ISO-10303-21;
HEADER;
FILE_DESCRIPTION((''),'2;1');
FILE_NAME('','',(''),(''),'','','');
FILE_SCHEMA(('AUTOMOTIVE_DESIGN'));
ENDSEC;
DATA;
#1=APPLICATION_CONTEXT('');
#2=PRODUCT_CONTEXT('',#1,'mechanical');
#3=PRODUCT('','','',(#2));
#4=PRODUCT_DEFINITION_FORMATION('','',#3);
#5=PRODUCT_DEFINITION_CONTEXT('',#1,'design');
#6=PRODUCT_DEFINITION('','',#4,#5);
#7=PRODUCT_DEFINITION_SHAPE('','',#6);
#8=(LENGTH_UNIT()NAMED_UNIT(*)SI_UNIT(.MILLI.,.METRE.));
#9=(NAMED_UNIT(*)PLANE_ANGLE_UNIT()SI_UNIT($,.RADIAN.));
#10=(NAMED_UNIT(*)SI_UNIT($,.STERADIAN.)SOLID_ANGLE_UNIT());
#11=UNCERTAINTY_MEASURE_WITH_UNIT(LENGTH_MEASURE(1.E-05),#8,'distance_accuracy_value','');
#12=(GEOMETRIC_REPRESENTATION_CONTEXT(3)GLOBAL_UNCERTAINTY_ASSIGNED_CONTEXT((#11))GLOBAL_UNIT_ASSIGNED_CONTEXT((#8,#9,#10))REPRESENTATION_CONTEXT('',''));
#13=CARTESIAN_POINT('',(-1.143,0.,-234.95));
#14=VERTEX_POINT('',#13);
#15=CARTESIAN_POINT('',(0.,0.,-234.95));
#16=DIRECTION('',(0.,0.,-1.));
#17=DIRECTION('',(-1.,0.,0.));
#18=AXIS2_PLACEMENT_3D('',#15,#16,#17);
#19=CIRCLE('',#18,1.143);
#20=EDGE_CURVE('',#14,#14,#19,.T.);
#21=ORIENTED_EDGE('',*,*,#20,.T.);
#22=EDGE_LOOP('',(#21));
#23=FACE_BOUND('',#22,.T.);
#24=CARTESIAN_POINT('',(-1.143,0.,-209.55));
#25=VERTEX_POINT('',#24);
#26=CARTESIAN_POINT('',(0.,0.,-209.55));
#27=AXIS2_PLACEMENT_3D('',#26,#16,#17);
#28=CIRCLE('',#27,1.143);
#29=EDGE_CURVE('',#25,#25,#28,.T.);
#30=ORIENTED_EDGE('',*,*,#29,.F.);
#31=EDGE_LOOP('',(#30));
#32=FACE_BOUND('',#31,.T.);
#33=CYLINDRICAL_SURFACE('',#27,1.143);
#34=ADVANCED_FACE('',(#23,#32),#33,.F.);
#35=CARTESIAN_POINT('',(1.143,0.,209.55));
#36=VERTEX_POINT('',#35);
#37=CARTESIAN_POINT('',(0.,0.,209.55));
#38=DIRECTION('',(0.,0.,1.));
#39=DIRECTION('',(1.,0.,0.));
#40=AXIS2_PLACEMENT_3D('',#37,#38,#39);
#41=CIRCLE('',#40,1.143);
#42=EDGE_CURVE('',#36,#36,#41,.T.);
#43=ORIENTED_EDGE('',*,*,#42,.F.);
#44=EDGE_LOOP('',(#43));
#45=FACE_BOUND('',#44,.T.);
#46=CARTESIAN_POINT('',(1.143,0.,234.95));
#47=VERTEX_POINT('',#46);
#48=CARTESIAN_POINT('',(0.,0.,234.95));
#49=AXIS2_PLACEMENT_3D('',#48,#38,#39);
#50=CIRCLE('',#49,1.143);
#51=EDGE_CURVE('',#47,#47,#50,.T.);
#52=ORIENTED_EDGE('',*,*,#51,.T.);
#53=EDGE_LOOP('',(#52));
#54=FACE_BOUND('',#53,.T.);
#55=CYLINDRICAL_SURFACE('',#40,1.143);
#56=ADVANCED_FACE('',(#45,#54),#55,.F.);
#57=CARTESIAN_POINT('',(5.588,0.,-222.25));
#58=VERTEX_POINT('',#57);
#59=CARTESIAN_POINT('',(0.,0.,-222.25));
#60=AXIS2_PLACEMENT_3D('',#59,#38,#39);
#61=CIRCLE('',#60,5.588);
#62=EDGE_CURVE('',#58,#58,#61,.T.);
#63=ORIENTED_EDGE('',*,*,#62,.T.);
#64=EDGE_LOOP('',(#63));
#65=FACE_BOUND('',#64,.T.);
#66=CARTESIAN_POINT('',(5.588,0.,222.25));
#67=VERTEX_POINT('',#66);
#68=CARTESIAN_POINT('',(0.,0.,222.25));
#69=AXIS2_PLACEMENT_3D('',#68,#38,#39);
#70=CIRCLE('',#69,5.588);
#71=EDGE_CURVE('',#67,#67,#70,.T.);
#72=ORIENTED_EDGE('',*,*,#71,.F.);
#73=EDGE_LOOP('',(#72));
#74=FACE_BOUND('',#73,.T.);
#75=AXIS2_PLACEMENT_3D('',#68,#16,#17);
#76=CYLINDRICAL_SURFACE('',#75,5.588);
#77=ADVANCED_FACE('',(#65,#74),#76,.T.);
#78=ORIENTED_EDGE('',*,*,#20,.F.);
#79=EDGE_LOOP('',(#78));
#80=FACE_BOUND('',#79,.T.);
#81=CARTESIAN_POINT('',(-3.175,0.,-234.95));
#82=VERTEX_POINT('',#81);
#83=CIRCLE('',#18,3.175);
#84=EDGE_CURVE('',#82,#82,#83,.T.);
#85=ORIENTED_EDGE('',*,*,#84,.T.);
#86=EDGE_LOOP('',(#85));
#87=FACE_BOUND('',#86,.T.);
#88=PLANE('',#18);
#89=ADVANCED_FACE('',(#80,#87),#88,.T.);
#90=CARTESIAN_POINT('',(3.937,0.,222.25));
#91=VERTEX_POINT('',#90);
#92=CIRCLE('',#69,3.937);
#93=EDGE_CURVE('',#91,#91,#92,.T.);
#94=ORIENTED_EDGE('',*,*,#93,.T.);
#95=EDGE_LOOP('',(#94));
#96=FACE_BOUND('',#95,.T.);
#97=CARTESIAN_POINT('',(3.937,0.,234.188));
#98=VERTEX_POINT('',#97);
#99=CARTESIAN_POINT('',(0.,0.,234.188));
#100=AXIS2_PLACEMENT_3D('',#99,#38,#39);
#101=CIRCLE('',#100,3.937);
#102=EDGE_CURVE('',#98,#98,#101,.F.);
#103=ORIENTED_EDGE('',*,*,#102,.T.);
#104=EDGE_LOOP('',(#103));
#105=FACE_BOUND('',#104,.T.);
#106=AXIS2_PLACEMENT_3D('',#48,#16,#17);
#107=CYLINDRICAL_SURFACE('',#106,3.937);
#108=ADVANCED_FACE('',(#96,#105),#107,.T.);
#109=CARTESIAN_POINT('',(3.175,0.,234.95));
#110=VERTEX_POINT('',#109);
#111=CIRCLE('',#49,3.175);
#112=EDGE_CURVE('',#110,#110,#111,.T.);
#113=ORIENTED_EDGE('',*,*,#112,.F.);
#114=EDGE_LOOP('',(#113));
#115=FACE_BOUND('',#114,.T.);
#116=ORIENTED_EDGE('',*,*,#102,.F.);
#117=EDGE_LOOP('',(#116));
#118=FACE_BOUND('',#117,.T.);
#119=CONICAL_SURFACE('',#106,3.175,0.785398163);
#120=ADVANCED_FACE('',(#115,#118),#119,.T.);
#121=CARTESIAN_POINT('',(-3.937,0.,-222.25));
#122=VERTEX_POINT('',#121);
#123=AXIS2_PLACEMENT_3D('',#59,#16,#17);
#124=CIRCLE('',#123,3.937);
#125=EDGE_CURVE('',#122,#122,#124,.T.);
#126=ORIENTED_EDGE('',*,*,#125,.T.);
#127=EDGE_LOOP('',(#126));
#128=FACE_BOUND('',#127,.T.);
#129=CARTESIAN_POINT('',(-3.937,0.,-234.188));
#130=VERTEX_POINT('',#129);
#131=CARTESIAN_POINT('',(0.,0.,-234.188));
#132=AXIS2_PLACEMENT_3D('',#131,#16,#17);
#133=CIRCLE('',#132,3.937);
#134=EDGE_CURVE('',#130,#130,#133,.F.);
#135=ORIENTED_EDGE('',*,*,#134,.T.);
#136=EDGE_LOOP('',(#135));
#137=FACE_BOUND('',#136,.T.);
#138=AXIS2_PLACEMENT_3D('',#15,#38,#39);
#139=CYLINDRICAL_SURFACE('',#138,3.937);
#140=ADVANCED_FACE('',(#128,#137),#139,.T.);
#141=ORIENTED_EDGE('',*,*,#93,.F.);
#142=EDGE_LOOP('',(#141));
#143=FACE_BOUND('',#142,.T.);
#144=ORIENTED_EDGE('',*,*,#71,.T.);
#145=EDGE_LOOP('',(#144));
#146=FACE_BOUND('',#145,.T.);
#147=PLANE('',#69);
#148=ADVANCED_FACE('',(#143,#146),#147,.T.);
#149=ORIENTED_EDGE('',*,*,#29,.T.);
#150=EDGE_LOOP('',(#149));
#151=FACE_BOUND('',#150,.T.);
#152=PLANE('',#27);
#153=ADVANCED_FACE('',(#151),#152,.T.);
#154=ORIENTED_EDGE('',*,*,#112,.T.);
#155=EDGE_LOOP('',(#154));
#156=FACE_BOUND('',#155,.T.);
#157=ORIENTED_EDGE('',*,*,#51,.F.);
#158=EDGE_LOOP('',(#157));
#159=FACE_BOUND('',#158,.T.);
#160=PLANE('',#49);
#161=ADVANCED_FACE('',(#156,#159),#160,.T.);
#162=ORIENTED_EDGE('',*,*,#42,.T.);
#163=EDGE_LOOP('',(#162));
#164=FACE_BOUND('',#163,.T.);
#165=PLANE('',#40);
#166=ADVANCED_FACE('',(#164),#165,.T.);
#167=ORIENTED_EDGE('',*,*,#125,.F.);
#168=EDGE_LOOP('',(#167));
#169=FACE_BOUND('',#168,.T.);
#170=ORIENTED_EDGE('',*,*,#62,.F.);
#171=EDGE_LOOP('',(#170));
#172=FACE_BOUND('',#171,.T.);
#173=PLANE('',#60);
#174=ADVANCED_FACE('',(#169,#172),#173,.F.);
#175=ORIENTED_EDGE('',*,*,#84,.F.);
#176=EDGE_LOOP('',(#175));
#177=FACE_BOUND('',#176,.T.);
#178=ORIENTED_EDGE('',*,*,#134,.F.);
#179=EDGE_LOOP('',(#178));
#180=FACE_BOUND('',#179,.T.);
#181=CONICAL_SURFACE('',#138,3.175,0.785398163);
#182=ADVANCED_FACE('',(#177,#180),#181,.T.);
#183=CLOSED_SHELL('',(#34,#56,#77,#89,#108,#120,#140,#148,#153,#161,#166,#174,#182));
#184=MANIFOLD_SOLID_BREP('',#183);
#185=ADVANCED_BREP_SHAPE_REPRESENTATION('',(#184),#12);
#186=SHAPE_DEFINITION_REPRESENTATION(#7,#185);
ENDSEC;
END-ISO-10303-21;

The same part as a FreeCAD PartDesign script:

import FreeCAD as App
import Part
import Sketcher
Q = App.Units.Quantity


def edges_at(feature, points):
    """Names of the edges that pass closest to the given points."""
    edges = feature.Shape.Edges
    near = lambda p: min(range(len(edges)), key=lambda i: edges[i].distToShape(Part.Vertex(*p))[0])
    return sorted({f"Edge{near(p) + 1}" for p in points})

doc = App.newDocument("Part")
body = doc.addObject("PartDesign::Body", "Body")

# Sketch on XY plane
sketch1 = body.newObject("Sketcher::SketchObject", "Sketch")
sketch1.AttachmentSupport = (doc.getObject("XY_Plane"), [""])
sketch1.MapMode = "FlatFace"
sketch1.addGeometry(Part.Circle(App.Vector(0, 0, 0), App.Vector(0, 0, 1), 6), False)
sketch1.addConstraint([
    Sketcher.Constraint("Coincident", 0, 3, -1, 1),
    Sketcher.Constraint("Diameter", 0, Q("0.44 in")),
])
pad1 = body.newObject("PartDesign::Pad", "Pad")
pad1.Profile = sketch1
pad1.Length = Q("17.5 in")
pad1.Midplane = True

# Sketch on XY plane
sketch2 = body.newObject("Sketcher::SketchObject", "Sketch001")
sketch2.AttachmentSupport = (doc.getObject("XY_Plane"), [""])
sketch2.MapMode = "FlatFace"
sketch2.AttachmentOffset = App.Placement(App.Vector(0, 0, 8.75 * 25.4), App.Rotation())
sketch2.addGeometry(Part.Circle(App.Vector(0, 0, 0), App.Vector(0, 0, 1), 3.9), False)
sketch2.addConstraint([
    Sketcher.Constraint("Coincident", 0, 3, -1, 1),
    Sketcher.Constraint("Diameter", 0, Q("0.31 in")),
])
pad2 = body.newObject("PartDesign::Pad", "Pad001")
pad2.Profile = sketch2
pad2.Length = Q("0.5 in")

# Sketch on XY plane
sketch3 = body.newObject("Sketcher::SketchObject", "Sketch002")
sketch3.AttachmentSupport = (doc.getObject("XY_Plane"), [""])
sketch3.MapMode = "FlatFace"
sketch3.AttachmentOffset = App.Placement(App.Vector(0, 0, -9.25 * 25.4), App.Rotation())
sketch3.addGeometry(Part.Circle(App.Vector(0, 0, 0), App.Vector(0, 0, 1), 3.9), False)
sketch3.addConstraint([
    Sketcher.Constraint("Coincident", 0, 3, -1, 1),
    Sketcher.Constraint("Diameter", 0, Q("0.31 in")),
])
pad3 = body.newObject("PartDesign::Pad", "Pad002")
pad3.Profile = sketch3
pad3.Length = Q("0.5 in")

# Sketch on XY plane
sketch4 = body.newObject("Sketcher::SketchObject", "Sketch003")
sketch4.AttachmentSupport = (doc.getObject("XY_Plane"), [""])
sketch4.MapMode = "FlatFace"
sketch4.AttachmentOffset = App.Placement(App.Vector(0, 0, 9.25 * 25.4), App.Rotation())
sketch4.addGeometry(Part.Circle(App.Vector(0, 0, 0), App.Vector(0, 0, 1), 1.1), False)
sketch4.addConstraint([
    Sketcher.Constraint("Coincident", 0, 3, -1, 1),
    Sketcher.Constraint("Diameter", 0, Q("0.09 in")),
])
pocket1 = body.newObject("PartDesign::Pocket", "Pocket")
pocket1.Profile = sketch4
pocket1.Length = Q("1 in")

# Sketch on XY plane
sketch5 = body.newObject("Sketcher::SketchObject", "Sketch004")
sketch5.AttachmentSupport = (doc.getObject("XY_Plane"), [""])
sketch5.MapMode = "FlatFace"
sketch5.AttachmentOffset = App.Placement(App.Vector(0, 0, -8.25 * 25.4), App.Rotation())
sketch5.addGeometry(Part.Circle(App.Vector(0, 0, 0), App.Vector(0, 0, 1), 1.1), False)
sketch5.addConstraint([
    Sketcher.Constraint("Coincident", 0, 3, -1, 1),
    Sketcher.Constraint("Diameter", 0, Q("0.09 in")),
])
pocket2 = body.newObject("PartDesign::Pocket", "Pocket001")
pocket2.Profile = sketch5
pocket2.Length = Q("1 in")
doc.recompute()

chamfer = body.newObject("PartDesign::Chamfer", "Chamfer")
chamfer.Base = (pocket2, edges_at(pocket2, [(-3.937, 0, -234.95), (-3.937, 0, 234.95)]))
chamfer.Size = Q("0.03 in")

doc.recompute()
